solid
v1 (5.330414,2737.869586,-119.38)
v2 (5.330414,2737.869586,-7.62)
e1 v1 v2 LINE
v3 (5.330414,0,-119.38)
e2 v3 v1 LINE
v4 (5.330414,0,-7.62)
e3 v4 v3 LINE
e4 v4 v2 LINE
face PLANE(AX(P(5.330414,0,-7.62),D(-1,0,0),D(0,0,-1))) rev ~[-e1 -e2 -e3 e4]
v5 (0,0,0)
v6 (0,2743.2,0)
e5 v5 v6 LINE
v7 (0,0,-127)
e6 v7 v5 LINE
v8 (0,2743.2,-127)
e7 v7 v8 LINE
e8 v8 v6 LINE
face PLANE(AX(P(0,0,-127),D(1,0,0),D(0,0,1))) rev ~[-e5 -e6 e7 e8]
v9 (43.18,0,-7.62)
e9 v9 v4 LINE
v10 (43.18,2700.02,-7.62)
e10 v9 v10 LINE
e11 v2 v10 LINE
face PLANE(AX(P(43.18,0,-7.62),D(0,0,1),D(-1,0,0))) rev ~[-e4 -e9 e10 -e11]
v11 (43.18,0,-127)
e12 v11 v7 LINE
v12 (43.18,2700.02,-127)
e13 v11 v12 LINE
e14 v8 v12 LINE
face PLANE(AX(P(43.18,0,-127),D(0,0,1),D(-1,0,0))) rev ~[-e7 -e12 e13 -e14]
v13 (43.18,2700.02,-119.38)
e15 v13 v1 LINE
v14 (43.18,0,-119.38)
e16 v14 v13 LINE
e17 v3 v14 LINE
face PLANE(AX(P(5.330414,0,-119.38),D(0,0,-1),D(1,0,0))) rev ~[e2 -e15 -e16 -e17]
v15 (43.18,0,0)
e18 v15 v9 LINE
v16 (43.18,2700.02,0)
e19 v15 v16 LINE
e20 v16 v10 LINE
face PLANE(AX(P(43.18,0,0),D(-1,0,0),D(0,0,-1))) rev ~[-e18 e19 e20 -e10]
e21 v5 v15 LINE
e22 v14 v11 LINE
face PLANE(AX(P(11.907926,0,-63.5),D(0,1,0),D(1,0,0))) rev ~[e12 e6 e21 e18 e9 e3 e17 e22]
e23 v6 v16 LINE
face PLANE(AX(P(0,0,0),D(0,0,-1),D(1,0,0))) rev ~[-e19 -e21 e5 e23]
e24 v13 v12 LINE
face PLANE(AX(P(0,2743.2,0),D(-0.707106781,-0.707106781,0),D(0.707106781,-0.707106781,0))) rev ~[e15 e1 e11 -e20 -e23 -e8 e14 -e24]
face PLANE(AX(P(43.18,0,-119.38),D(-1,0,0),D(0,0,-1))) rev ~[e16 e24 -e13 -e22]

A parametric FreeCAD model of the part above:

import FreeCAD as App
import Part
import Sketcher
Q = App.Units.Quantity


def add_polygon(sketch, points):
    """Adds a closed chain of lines whose ends are joined by coincident constraints."""
    first, n = sketch.GeometryCount, len(points)
    for a, b in zip(points, points[1:] + points[:1]):
        sketch.addGeometry(Part.LineSegment(App.Vector(*a, 0), App.Vector(*b, 0)), False)
    for i in range(n):
        sketch.addConstraint(Sketcher.Constraint("Coincident", first + i, 2, first + (i + 1) % n, 1))

doc = App.newDocument("Part")
body = doc.addObject("PartDesign::Body", "Body")

sketch1 = body.newObject("Sketcher::SketchObject", "Sketch")
sketch1.AttachmentSupport = (doc.getObject("XZ_Plane"), [""])
sketch1.MapMode = "FlatFace"
add_polygon(sketch1, [(0, 0), (43, 0), (43, -8), (5, -8), (5, -119), (43, -119), (43, -127), (0, -127)])
sketch1.addConstraint([
    Sketcher.Constraint("Horizontal", 0),
    Sketcher.Constraint("Vertical", 1),
    Sketcher.Constraint("Horizontal", 2),
    Sketcher.Constraint("Vertical", 3),
    Sketcher.Constraint("Horizontal", 4),
    Sketcher.Constraint("Vertical", 5),
    Sketcher.Constraint("Horizontal", 6),
    Sketcher.Constraint("Vertical", 7),
    Sketcher.Constraint("Coincident", 7, 2, -1, 1),
    Sketcher.Constraint("Vertical", 1, 2, 4, 2),
    Sketcher.Constraint("Equal", 1, 5),
    Sketcher.Constraint("DistanceY", 7, 1, 7, 2, Q("5 in")),
    Sketcher.Constraint("DistanceX", 0, 1, 0, 2, Q("1.7 in")),
    Sketcher.Constraint("DistanceY", 1, 2, 1, 1, Q("0.3 in")),
    Sketcher.Constraint("DistanceX", 2, 2, 2, 1, 37.849586),
])
pad1 = body.newObject("PartDesign::Pad", "Pad")
pad1.Profile = sketch1
pad1.Length = Q("108 in")
pad1.Reversed = True

sketch2 = body.newObject("Sketcher::SketchObject", "Sketch001")
sketch2.AttachmentSupport = (doc.getObject("XY_Plane"), [""])
sketch2.MapMode = "FlatFace"
add_polygon(sketch2, [(0, 2743), (43, 2700), (43, 2743)])
sketch2.addConstraint([
    Sketcher.Constraint("Vertical", 1),
    Sketcher.Constraint("Horizontal", 2),
    Sketcher.Constraint("PointOnObject", 2, 2, -2),
    Sketcher.Constraint("Equal", 2, 1),
    Sketcher.Constraint("DistanceX", 2, 2, 2, 1, Q("1.7 in")),
    Sketcher.Constraint("DistanceY", -1, 1, 1, 2, Q("108 in")),
])
pocket1 = body.newObject("PartDesign::Pocket", "Pocket")
pocket1.Profile = sketch2
pocket1.Type = "ThroughAll"

doc.recompute()
